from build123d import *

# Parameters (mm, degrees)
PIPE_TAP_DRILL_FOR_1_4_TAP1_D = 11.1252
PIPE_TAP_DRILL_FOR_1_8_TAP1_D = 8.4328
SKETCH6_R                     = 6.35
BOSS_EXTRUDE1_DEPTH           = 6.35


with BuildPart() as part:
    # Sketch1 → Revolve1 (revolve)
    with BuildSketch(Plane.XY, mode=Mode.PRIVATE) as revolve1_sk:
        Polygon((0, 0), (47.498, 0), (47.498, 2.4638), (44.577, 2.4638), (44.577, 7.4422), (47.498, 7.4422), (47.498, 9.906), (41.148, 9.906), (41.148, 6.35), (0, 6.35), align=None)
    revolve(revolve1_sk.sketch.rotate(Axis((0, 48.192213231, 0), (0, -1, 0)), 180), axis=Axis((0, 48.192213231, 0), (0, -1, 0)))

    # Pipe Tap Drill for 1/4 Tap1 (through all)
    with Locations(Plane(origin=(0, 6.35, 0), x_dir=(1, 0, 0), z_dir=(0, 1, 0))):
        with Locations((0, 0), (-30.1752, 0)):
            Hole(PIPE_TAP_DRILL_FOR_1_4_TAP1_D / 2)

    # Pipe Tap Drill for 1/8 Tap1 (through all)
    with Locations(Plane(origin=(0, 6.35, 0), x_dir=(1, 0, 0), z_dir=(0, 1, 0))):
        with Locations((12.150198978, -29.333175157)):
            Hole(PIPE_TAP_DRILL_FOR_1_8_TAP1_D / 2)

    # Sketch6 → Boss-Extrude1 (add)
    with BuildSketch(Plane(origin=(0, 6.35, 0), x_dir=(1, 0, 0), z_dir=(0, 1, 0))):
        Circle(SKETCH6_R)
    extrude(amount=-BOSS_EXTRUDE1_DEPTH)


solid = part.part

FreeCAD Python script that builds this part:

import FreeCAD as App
import Part
import Sketcher

V = App.Vector
Q = App.Units.Quantity

doc = App.newDocument("Part")
body = doc.addObject("PartDesign::Body", "Body")

# Sketch on XY plane
sketch1 = body.newObject("Sketcher::SketchObject", "Sketch")
sketch1.AttachmentSupport = (doc.getObject("XY_Plane"), [""])
sketch1.MapMode = "FlatFace"
sketch1.addGeometry([
    Part.LineSegment(V(0, 0, 0), V(47.498, 0, 0)),  # 0
    Part.LineSegment(V(47.498, 0, 0), V(47.498, 2.4638, 0)),  # 1
    Part.LineSegment(V(47.498, 2.4638, 0), V(44.577, 2.4638, 0)),  # 2
    Part.LineSegment(V(44.577, 2.4638, 0), V(44.577, 7.4422, 0)),  # 3
    Part.LineSegment(V(44.577, 7.4422, 0), V(47.498, 7.4422, 0)),  # 4
    Part.LineSegment(V(47.498, 7.4422, 0), V(47.498, 9.906, 0)),  # 5
    Part.LineSegment(V(47.498, 9.906, 0), V(41.148, 9.906, 0)),  # 6
    Part.LineSegment(V(41.148, 9.906, 0), V(41.148, 6.35, 0)),  # 7
    Part.LineSegment(V(41.148, 6.35, 0), V(0, 6.35, 0)),  # 8
    Part.LineSegment(V(0, 6.35, 0), V(0, 0, 0)),  # 9
], False)
sketch1.addConstraint([
    Sketcher.Constraint("Coincident", 0, 2, 1, 1),
    Sketcher.Constraint("Coincident", 1, 2, 2, 1),
    Sketcher.Constraint("Coincident", 2, 2, 3, 1),
    Sketcher.Constraint("Coincident", 3, 2, 4, 1),
    Sketcher.Constraint("Coincident", 4, 2, 5, 1),
    Sketcher.Constraint("Coincident", 5, 2, 6, 1),
    Sketcher.Constraint("Coincident", 6, 2, 7, 1),
    Sketcher.Constraint("Coincident", 7, 2, 8, 1),
    Sketcher.Constraint("Coincident", 8, 2, 9, 1),
    Sketcher.Constraint("Coincident", 9, 2, 0, 1),
    Sketcher.Constraint("Horizontal", 0),
    Sketcher.Constraint("Vertical", 1),
    Sketcher.Constraint("Horizontal", 2),
    Sketcher.Constraint("Vertical", 3),
    Sketcher.Constraint("Horizontal", 4),
    Sketcher.Constraint("Vertical", 5),
    Sketcher.Constraint("Horizontal", 6),
    Sketcher.Constraint("Vertical", 7),
    Sketcher.Constraint("Horizontal", 8),
    Sketcher.Constraint("Vertical", 9),
    Sketcher.Constraint("Coincident", 9, 2, -1, 1),
    Sketcher.Constraint("Vertical", 1, 2, 4, 2),
    Sketcher.Constraint("Equal", 1, 5),
    Sketcher.Constraint("Equal", 6, 9),
    Sketcher.Constraint("DistanceX", 0, 1, 0, 2, Q("1.87 in")),
    Sketcher.Constraint("DistanceX", 6, 2, 6, 1, Q("0.25 in")),
    Sketcher.Constraint("DistanceY", 7, 2, 7, 1, Q("0.14 in")),
    Sketcher.Constraint("DistanceX", 2, 2, 2, 1, Q("0.115 in")),
    Sketcher.Constraint("DistanceY", 1, 1, 1, 2, Q("0.097 in")),
])
revolution = body.newObject("PartDesign::Revolution", "Revolution")
revolution.Profile = sketch1
revolution.ReferenceAxis = (sketch1, ["V_Axis"])
revolution.Angle = 360

# Sketch on XZ plane
sketch2 = body.newObject("Sketcher::SketchObject", "Sketch001")
sketch2.AttachmentSupport = (doc.getObject("XZ_Plane"), [""])
sketch2.MapMode = "FlatFace"
sketch2.AttachmentOffset = App.Placement(V(0, 0, -0.25 * 25.4), App.Rotation())
sketch2.addGeometry([
    Part.Circle(V(0, 0, 0), V(0, 0, 1), 5.5626),
    Part.Circle(V(-30.1752, 0, 0), V(0, 0, 1), 5.5626),
], False)
sketch2.addConstraint([
    Sketcher.Constraint("Coincident", 0, 3, -1, 1),
    Sketcher.Constraint("Equal", 0, 1),
    Sketcher.Constraint("PointOnObject", 1, 3, -1),
    Sketcher.Constraint("Diameter", 0, Q("0.438 in")),
    Sketcher.Constraint("DistanceX", 1, 3, -1, 1, Q("1.188 in")),
])
doc.recompute()
hole = body.newObject("PartDesign::Hole", "Hole")
hole.Profile = sketch2
hole.ThreadType = "None"
hole.Diameter = Q("0.438 in")
hole.DepthType = "ThroughAll"
hole.Reversed = True

# Sketch on XZ plane
sketch3 = body.newObject("Sketcher::SketchObject", "Sketch002")
sketch3.AttachmentSupport = (doc.getObject("XZ_Plane"), [""])
sketch3.MapMode = "FlatFace"
sketch3.AttachmentOffset = App.Placement(V(0, 0, -0.25 * 25.4), App.Rotation())
sketch3.addGeometry(Part.Circle(V(12.150199, 29.333175, 0), V(0, 0, 1), 4.2164), False)
sketch3.addConstraint([
    Sketcher.Constraint("Diameter", 0, Q("0.332 in")),
    Sketcher.Constraint("DistanceX", -1, 1, 0, 3, 12.150199),
    Sketcher.Constraint("DistanceY", -1, 1, 0, 3, 29.333175),
])
doc.recompute()
hole2 = body.newObject("PartDesign::Hole", "Hole001")
hole2.Profile = sketch3
hole2.ThreadType = "None"
hole2.Diameter = Q("0.332 in")
hole2.DepthType = "ThroughAll"
hole2.Reversed = True

# Sketch on XZ plane
sketch4 = body.newObject("Sketcher::SketchObject", "Sketch003")
sketch4.AttachmentSupport = (doc.getObject("XZ_Plane"), [""])
sketch4.MapMode = "FlatFace"
sketch4.AttachmentOffset = App.Placement(V(0, 0, -0.25 * 25.4), App.Rotation())
sketch4.addGeometry(Part.Circle(V(0, 0, 0), V(0, 0, 1), 6.35), False)
sketch4.addConstraint([
    Sketcher.Constraint("Coincident", 0, 3, -1, 1),
    Sketcher.Constraint("Diameter", 0, Q("0.5 in")),
])
pad1 = body.newObject("PartDesign::Pad", "Pad")
pad1.Profile = sketch4
pad1.Length = Q("0.25 in")

doc.recompute()
